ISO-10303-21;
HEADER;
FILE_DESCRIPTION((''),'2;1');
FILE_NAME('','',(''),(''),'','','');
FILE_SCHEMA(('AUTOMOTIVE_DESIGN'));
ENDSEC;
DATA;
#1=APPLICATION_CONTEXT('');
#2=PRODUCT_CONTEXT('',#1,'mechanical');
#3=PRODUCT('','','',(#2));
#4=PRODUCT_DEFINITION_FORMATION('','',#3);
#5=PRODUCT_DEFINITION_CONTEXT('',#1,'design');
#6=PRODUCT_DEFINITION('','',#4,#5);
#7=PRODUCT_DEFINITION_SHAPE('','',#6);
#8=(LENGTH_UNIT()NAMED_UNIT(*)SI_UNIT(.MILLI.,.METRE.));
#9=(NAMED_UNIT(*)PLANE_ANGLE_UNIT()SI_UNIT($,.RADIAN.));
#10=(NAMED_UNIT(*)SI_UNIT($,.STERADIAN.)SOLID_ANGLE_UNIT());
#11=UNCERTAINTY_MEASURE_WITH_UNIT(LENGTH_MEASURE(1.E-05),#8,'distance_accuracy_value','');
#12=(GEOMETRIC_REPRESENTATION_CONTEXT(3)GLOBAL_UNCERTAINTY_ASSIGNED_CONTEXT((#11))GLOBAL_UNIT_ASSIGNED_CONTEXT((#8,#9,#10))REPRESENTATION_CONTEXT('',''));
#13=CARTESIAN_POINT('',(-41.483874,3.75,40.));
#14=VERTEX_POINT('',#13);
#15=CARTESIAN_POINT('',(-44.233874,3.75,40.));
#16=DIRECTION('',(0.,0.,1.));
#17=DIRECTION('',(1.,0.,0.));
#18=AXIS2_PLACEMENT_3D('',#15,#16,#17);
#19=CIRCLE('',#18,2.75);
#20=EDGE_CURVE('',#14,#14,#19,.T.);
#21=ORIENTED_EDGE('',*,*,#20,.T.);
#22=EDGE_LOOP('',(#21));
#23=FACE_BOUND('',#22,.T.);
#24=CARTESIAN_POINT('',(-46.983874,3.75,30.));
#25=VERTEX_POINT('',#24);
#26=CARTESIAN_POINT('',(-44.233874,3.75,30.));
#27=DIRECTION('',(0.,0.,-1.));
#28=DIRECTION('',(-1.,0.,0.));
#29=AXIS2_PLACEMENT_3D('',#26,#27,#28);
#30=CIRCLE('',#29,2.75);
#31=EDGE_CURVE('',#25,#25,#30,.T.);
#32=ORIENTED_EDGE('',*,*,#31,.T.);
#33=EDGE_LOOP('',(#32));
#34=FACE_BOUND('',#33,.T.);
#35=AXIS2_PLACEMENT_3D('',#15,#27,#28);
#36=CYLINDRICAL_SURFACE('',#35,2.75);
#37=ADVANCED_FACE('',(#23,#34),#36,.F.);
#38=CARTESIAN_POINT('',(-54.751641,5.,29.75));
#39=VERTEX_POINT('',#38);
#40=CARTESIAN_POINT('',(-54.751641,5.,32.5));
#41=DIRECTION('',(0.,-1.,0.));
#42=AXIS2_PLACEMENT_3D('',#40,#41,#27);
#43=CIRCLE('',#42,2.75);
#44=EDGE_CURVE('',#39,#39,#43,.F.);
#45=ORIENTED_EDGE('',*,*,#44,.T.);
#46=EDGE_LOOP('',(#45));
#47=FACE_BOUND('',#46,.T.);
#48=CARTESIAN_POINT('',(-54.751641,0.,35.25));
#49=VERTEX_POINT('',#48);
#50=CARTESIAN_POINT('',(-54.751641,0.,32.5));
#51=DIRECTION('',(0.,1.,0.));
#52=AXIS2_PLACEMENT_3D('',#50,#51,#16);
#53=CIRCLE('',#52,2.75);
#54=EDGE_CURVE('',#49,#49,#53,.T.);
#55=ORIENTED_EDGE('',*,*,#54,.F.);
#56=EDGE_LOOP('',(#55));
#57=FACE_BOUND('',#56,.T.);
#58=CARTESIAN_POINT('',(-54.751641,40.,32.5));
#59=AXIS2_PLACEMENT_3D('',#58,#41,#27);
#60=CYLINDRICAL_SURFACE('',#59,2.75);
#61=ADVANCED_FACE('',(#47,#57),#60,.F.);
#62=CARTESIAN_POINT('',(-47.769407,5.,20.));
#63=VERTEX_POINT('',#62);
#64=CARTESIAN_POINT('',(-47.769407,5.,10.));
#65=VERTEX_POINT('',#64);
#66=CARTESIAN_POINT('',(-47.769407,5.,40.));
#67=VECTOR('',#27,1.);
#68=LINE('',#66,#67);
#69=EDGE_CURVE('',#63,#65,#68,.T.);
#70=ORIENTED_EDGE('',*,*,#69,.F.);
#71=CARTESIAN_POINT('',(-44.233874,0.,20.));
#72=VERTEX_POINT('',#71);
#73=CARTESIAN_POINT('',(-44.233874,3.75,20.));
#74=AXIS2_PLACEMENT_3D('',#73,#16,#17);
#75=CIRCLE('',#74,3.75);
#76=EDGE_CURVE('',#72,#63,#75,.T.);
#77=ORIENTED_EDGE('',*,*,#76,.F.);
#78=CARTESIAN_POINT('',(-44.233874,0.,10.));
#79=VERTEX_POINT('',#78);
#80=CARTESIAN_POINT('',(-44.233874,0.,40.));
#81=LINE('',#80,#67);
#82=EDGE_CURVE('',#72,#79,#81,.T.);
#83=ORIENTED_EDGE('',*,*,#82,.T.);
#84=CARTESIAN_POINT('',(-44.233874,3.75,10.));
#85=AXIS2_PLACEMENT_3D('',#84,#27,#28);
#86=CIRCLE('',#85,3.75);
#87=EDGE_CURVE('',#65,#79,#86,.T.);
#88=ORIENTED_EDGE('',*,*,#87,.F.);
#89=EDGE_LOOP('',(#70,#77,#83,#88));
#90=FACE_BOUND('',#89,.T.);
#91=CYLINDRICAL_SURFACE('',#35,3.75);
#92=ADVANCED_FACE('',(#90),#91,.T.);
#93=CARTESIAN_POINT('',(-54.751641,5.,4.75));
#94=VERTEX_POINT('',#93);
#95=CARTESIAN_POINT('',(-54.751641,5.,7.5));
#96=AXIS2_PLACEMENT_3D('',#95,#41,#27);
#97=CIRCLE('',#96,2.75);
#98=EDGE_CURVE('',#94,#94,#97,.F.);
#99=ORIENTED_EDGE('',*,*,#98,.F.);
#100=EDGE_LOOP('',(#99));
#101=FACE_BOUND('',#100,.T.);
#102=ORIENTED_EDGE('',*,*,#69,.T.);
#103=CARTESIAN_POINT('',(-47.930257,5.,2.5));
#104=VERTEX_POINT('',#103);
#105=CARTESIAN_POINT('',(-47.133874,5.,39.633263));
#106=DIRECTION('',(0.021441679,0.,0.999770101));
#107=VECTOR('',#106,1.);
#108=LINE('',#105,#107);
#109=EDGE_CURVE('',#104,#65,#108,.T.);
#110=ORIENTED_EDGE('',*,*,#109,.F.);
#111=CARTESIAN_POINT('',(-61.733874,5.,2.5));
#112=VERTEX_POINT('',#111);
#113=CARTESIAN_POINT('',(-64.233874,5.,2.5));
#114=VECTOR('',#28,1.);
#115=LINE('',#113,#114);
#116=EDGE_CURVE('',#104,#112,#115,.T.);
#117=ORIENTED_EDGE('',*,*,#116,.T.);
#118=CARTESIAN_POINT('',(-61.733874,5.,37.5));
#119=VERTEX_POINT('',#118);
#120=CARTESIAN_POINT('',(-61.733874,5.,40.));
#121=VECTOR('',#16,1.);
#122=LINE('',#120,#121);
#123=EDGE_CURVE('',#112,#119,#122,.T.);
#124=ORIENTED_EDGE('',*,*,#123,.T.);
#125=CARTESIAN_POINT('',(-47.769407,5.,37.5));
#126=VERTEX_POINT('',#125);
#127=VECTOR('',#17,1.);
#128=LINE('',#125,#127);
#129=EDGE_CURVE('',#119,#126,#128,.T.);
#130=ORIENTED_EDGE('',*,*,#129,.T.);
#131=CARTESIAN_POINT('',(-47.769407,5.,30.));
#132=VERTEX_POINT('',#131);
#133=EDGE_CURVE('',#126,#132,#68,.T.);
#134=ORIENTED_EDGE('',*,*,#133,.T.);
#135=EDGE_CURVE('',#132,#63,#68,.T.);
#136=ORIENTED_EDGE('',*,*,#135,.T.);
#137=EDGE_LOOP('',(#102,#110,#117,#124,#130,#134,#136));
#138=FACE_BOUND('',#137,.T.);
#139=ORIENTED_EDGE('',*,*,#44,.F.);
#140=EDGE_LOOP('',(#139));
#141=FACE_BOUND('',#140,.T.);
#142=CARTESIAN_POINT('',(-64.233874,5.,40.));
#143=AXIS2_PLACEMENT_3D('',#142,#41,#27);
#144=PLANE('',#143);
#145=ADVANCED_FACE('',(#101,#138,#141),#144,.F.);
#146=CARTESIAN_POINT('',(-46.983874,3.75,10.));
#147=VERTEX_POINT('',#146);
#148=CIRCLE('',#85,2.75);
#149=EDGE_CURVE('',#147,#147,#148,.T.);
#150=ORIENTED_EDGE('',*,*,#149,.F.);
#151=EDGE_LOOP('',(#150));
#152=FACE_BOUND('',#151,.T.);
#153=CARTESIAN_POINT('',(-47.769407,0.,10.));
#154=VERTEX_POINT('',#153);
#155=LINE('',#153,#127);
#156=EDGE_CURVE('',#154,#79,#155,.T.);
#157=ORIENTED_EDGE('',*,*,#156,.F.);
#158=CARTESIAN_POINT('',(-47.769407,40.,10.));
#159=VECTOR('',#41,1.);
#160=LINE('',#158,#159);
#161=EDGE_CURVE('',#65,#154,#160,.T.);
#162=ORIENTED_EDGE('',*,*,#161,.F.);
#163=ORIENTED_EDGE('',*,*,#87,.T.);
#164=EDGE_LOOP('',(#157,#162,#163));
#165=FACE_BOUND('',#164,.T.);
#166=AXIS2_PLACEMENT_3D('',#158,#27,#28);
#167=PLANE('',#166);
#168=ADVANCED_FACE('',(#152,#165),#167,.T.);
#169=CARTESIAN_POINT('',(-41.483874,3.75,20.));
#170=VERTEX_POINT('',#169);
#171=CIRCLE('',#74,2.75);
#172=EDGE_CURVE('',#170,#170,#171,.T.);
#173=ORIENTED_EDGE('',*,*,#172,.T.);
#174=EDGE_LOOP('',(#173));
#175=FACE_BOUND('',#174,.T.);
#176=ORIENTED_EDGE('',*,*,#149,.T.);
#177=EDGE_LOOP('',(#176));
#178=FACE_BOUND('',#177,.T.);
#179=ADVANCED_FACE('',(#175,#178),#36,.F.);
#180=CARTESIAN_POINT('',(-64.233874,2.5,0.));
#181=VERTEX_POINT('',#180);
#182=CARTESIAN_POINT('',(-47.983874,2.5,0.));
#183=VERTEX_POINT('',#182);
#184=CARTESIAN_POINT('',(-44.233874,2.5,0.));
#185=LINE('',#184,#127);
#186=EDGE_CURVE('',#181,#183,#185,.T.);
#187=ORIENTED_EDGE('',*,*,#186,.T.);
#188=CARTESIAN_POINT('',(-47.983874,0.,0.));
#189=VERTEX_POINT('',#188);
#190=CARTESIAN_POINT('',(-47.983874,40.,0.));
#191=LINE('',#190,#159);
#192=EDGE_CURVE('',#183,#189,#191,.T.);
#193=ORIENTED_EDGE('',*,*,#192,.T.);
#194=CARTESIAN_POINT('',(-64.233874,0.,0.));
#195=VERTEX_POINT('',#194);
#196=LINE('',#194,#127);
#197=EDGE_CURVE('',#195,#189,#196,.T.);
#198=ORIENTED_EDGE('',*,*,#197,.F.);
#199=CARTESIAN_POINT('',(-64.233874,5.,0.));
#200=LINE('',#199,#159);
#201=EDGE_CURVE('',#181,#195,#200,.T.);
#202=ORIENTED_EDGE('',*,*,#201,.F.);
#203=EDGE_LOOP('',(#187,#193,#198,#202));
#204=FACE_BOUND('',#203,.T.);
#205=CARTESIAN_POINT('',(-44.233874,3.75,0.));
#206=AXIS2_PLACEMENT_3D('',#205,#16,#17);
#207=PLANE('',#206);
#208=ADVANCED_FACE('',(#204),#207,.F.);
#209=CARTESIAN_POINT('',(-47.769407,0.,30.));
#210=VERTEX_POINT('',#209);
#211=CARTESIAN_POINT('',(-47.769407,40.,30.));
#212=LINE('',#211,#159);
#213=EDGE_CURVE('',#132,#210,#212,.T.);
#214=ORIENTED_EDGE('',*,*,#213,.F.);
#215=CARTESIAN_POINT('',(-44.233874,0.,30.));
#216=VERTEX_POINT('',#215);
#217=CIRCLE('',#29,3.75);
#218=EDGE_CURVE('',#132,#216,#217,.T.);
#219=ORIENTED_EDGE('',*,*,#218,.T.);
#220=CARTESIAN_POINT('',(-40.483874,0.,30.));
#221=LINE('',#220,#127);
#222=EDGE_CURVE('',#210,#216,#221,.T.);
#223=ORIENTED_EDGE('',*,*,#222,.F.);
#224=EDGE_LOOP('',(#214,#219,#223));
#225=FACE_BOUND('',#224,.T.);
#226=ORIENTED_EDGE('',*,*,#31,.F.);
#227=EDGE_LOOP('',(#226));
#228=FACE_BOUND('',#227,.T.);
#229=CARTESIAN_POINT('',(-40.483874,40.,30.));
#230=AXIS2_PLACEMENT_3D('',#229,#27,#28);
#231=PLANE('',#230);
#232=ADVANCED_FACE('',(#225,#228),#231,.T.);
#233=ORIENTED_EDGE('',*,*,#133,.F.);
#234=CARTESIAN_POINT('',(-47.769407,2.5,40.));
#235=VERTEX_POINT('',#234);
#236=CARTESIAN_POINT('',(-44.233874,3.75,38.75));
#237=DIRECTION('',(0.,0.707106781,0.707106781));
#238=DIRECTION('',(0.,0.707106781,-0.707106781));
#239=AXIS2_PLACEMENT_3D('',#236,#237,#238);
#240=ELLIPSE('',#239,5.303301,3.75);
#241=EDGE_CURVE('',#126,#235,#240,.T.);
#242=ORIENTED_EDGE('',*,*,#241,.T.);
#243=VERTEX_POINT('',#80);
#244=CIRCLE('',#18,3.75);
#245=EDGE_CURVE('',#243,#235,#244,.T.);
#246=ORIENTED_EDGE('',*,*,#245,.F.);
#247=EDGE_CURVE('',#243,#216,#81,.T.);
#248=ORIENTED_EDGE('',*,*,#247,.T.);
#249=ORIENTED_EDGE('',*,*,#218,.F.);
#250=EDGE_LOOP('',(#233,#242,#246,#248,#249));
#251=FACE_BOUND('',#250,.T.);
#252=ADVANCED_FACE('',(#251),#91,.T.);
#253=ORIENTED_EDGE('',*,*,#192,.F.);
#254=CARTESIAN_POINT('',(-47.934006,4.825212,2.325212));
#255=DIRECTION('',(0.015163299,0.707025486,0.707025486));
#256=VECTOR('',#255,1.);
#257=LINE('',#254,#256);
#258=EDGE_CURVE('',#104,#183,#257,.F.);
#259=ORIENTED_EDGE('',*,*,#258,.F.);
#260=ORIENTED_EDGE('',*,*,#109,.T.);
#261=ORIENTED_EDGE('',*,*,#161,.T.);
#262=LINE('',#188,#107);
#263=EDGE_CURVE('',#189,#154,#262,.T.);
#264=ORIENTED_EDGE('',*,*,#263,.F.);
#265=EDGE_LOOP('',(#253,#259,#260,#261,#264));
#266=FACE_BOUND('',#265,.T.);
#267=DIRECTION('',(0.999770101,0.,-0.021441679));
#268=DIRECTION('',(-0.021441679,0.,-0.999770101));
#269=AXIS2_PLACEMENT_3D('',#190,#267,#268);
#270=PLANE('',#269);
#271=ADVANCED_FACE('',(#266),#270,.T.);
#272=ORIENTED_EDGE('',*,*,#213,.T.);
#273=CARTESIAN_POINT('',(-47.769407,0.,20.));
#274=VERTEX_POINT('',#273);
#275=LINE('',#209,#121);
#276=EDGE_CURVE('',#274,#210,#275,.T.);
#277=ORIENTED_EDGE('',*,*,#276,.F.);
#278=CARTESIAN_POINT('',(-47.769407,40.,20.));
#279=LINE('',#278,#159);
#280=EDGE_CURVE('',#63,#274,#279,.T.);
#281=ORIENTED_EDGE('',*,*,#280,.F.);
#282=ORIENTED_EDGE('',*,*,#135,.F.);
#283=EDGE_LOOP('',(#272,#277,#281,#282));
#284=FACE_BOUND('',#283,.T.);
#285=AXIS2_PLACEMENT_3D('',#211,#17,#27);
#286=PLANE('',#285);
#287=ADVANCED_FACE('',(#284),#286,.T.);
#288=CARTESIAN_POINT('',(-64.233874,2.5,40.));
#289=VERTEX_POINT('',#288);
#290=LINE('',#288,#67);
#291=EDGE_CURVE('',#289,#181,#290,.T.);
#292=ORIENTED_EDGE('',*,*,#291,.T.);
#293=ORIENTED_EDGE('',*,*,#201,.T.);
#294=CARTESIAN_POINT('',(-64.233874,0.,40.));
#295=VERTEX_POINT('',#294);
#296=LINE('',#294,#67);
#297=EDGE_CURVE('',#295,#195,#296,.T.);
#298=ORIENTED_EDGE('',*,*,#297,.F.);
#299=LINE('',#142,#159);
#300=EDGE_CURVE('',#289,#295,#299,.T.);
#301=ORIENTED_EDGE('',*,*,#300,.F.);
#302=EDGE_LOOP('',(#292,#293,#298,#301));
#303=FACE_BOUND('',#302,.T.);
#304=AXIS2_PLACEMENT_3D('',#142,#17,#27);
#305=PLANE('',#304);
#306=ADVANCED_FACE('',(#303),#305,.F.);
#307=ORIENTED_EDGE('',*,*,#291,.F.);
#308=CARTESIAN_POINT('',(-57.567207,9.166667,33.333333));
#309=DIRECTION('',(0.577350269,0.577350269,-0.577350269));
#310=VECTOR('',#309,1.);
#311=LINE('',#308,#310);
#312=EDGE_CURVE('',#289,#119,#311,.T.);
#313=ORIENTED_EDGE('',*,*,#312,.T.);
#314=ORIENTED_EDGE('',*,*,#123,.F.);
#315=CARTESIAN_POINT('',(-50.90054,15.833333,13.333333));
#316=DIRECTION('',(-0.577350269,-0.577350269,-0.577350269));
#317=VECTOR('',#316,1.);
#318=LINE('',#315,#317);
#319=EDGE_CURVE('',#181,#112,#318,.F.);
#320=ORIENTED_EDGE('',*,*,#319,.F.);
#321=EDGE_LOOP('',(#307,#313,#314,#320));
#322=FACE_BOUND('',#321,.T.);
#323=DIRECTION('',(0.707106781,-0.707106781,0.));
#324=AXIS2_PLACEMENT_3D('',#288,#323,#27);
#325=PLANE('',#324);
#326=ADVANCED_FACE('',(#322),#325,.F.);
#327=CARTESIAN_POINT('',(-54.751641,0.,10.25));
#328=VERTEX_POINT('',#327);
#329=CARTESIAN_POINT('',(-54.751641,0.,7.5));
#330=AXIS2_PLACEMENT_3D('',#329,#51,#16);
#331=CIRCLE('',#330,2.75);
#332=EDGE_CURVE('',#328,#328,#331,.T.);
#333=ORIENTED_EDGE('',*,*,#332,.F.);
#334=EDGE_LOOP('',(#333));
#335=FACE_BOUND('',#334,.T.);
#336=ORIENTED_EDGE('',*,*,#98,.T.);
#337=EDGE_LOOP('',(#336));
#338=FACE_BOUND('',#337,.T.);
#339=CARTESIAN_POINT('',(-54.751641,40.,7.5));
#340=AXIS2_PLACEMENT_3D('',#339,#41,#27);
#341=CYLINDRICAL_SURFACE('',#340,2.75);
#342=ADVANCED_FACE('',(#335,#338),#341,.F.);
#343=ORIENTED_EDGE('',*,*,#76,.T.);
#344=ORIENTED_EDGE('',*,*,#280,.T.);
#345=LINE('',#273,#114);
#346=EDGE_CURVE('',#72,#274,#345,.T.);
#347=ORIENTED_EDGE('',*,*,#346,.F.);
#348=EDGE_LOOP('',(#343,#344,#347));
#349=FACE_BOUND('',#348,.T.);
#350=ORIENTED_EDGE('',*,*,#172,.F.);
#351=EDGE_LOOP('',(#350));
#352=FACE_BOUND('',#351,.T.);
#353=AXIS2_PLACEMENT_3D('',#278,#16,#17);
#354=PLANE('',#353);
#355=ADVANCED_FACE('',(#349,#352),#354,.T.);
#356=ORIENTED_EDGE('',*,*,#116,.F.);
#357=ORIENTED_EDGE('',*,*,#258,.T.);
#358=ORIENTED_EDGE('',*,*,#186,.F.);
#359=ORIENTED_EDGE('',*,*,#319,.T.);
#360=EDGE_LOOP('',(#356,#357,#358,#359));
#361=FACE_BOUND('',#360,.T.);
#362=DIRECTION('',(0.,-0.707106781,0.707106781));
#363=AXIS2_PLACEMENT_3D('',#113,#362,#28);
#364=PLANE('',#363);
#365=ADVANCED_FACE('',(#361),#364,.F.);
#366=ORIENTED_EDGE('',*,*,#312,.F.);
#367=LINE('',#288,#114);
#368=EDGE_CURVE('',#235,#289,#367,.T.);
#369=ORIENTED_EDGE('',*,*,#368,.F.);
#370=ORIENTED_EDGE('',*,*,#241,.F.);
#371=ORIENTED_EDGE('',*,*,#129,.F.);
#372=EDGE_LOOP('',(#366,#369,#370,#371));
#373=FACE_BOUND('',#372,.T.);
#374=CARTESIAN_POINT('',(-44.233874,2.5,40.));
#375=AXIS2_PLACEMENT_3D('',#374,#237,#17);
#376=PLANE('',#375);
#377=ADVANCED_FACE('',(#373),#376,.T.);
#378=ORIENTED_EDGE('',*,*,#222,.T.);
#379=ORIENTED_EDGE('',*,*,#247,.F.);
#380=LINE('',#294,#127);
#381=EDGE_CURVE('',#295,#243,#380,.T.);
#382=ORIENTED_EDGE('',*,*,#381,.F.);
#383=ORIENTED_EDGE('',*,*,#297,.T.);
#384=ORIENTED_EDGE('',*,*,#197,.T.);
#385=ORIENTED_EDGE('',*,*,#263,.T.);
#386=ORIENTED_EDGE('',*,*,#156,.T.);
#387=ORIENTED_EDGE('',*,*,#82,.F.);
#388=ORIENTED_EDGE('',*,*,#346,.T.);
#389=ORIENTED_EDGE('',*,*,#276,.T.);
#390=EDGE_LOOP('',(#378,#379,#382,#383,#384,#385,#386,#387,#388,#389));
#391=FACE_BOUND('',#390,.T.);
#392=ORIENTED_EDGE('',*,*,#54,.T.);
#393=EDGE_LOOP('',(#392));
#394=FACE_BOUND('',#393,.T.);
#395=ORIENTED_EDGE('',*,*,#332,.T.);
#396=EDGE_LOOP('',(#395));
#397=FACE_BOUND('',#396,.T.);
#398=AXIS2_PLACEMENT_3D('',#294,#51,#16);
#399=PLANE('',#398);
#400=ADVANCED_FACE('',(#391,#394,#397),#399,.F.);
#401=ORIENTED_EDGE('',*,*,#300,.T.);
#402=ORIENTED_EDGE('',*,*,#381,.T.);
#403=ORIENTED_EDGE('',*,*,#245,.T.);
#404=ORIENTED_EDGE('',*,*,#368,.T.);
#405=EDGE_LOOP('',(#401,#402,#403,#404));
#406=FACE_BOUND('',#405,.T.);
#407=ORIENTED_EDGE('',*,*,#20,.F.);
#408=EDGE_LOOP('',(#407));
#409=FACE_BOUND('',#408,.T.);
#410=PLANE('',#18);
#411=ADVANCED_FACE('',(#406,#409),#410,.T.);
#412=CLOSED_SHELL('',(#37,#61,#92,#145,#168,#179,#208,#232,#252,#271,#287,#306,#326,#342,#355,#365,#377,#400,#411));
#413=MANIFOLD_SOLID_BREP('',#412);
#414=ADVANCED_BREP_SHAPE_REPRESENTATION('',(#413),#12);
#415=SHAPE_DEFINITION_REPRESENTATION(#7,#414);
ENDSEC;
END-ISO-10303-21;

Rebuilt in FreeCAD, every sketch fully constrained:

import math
import FreeCAD as App
import Part
import Sketcher

V = App.Vector
Q = App.Units.Quantity


def edges_at(feature, points):
    """Names of the edges that pass closest to the given points."""
    edges = feature.Shape.Edges
    near = lambda p: min(range(len(edges)), key=lambda i: edges[i].distToShape(Part.Vertex(*p))[0])
    return sorted({f"Edge{near(p) + 1}" for p in points})

doc = App.newDocument("Part")
params = doc.addObject("Spreadsheet::Sheet", "Params")
for row, (alias, value) in enumerate([
    ("sketch1_diameter", "5.5 mm"),
    ("sketch1_width", "20 mm"),
    ("sketch1_height", "5 mm"),
    ("sketch1_radius", "3.75 mm"),
    ("pad1_length", "40 mm"),
    ("chamfer_size", "2.5 mm"),
    ("sketch2_diameter", "5.5 mm"),
    ("sketch2_height", "10 mm"),
    ("sketch2_width", "7.5 mm"),
    ("pocket1_length", "40 mm"),
    ("pocket2_length", "88 mm"),
], start=1):
    params.set(f"A{row}", alias)
    params.set(f"B{row}", "=" + value)
    params.setAlias(f"B{row}", alias)

body = doc.addObject("PartDesign::Body", "Body")

# Sketch on XY plane
sketch1 = doc.addObject("Sketcher::SketchObject", "Sketch")
body.addObject(sketch1)
sketch1.AttachmentSupport = (doc.XY_Plane, [""])
sketch1.MapMode = "FlatFace"
sketch1.addGeometry([
    Part.LineSegment(V(-64.233874, 5, 0), V(-64.233874, 0, 0)),  # 0
    Part.LineSegment(V(-64.233874, 0, 0), V(-44.233874, 0, 0)),  # 1
    Part.ArcOfCircle(Part.Circle(V(-44.233874, 3.75, 0), V(0, 0, 1), 3.75), math.radians(-90), math.radians(160.528779)),  # 2
    Part.LineSegment(V(-47.769407, 5, 0), V(-64.233874, 5, 0)),  # 3
    Part.Circle(V(-44.233874, 3.75, 0), V(0, 0, 1), 2.75),  # 4
], False)
sketch1.addConstraint([
    Sketcher.Constraint("Coincident", 0, 2, 1, 1),
    Sketcher.Constraint("Tangent", 1, 2, 2, 1),
    Sketcher.Constraint("Coincident", 2, 2, 3, 1),
    Sketcher.Constraint("Coincident", 3, 2, 0, 1),
    Sketcher.Constraint("Vertical", 0),
    Sketcher.Constraint("Horizontal", 1),
    Sketcher.Constraint("Horizontal", 3),
    Sketcher.Constraint("Coincident", 4, 3, 2, 3),
    Sketcher.Constraint("PointOnObject", 0, 2, -1),
    Sketcher.Constraint("Diameter", 4, Q("5.5 mm")),
    Sketcher.Constraint("DistanceX", 1, 1, 1, 2, Q("20 mm")),
    Sketcher.Constraint("DistanceY", 0, 2, 0, 1, Q("5 mm")),
    Sketcher.Constraint("Radius", 2, Q("3.75 mm")),
    Sketcher.Constraint("DistanceX", 2, 3, -1, 1, Q("44.233874 mm")),
])
sketch1.setExpression("Constraints[9]", "Params.sketch1_diameter")
sketch1.setExpression("Constraints[10]", "Params.sketch1_width")
sketch1.setExpression("Constraints[11]", "Params.sketch1_height")
sketch1.setExpression("Constraints[12]", "Params.sketch1_radius")
pad1 = doc.addObject("PartDesign::Pad", "Pad")
body.addObject(pad1)
pad1.Profile = sketch1
pad1.setExpression("Length", "Params.pad1_length")
doc.recompute()

chamfer = doc.addObject("PartDesign::Chamfer", "Chamfer")
body.addObject(chamfer)
chamfer.Base = (pad1, edges_at(pad1, [(-56.002, 5, 40), (-56.002, 5, 0), (-64.234, 5, 20)]))
chamfer.setExpression("Size", "Params.chamfer_size")

# Sketch on XZ plane
sketch2 = doc.addObject("Sketcher::SketchObject", "Sketch001")
body.addObject(sketch2)
sketch2.AttachmentSupport = (doc.XZ_Plane, [""])
sketch2.MapMode = "FlatFace"
sketch2.addGeometry([
    Part.Circle(V(-54.751641, 32.5, 0), V(0, 0, 1), 2.75),  # 0
    Part.Circle(V(-54.751641, 7.5, 0), V(0, 0, 1), 2.75),  # 1
    Part.LineSegment(V(-47.769407, 20, 0), V(-47.769407, 30, 0)),  # 2
    Part.LineSegment(V(-47.769407, 30, 0), V(-40.483874, 30, 0)),  # 3
    Part.LineSegment(V(-40.483874, 30, 0), V(-40.483874, 20, 0)),  # 4
    Part.LineSegment(V(-40.483874, 20, 0), V(-47.769407, 20, 0)),  # 5
    Part.LineSegment(V(-40.483874, 0, 0), V(-47.983874, 0, 0)),  # 6
    Part.LineSegment(V(-47.983874, 0, 0), V(-47.769407, 10, 0)),  # 7
    Part.LineSegment(V(-47.769407, 10, 0), V(-40.483874, 10, 0)),  # 8
    Part.LineSegment(V(-40.483874, 10, 0), V(-40.483874, 0, 0)),  # 9
], False)
sketch2.addConstraint([
    Sketcher.Constraint("Coincident", 2, 2, 3, 1),
    Sketcher.Constraint("Coincident", 3, 2, 4, 1),
    Sketcher.Constraint("Coincident", 4, 2, 5, 1),
    Sketcher.Constraint("Coincident", 5, 2, 2, 1),
    Sketcher.Constraint("Coincident", 6, 2, 7, 1),
    Sketcher.Constraint("Coincident", 7, 2, 8, 1),
    Sketcher.Constraint("Coincident", 8, 2, 9, 1),
    Sketcher.Constraint("Coincident", 9, 2, 6, 1),
    Sketcher.Constraint("Vertical", 2),
    Sketcher.Constraint("Horizontal", 3),
    Sketcher.Constraint("Vertical", 4),
    Sketcher.Constraint("Horizontal", 5),
    Sketcher.Constraint("Horizontal", 6),
    Sketcher.Constraint("Horizontal", 8),
    Sketcher.Constraint("Vertical", 9),
    Sketcher.Constraint("Equal", 0, 1),
    Sketcher.Constraint("PointOnObject", 6, 2, -1),
    Sketcher.Constraint("Vertical", 0, 3, 1, 3),
    Sketcher.Constraint("Vertical", 5, 2, 7, 2),
    Sketcher.Constraint("Vertical", 4, 2, 8, 2),
    Sketcher.Constraint("Equal", 4, 9),
    Sketcher.Constraint("Diameter", 0, Q("5.5 mm")),
    Sketcher.Constraint("DistanceY", 2, 1, 2, 2, Q("10 mm")),
    Sketcher.Constraint("DistanceX", 6, 2, 6, 1, Q("7.5 mm")),
    Sketcher.Constraint("DistanceY", -1, 1, 2, 2, Q("30 mm")),
    Sketcher.Constraint("DistanceY", 1, 3, 0, 3, Q("25 mm")),
    Sketcher.Constraint("DistanceY", -1, 1, 0, 3, Q("32.5 mm")),
    Sketcher.Constraint("Distance", 7, Q("10.0023 mm")),
    Sketcher.Constraint("DistanceX", 0, 3, -1, 1, Q("54.751641 mm")),
    Sketcher.Constraint("DistanceX", 2, 2, -1, 1, Q("47.769407 mm")),
])
sketch2.setExpression("Constraints[21]", "Params.sketch2_diameter")
sketch2.setExpression("Constraints[22]", "Params.sketch2_height")
sketch2.setExpression("Constraints[23]", "Params.sketch2_width")
pocket1 = doc.addObject("PartDesign::Pocket", "Pocket")
body.addObject(pocket1)
pocket1.Profile = sketch2
pocket1.setExpression("Length", "Params.pocket1_length")

# Sketch on YZ plane
sketch3 = doc.addObject("Sketcher::SketchObject", "Sketch002")
body.addObject(sketch3)
sketch3.AttachmentSupport = (doc.YZ_Plane, [""])
sketch3.MapMode = "FlatFace"
sketch3.addGeometry([
    Part.LineSegment(V(4.284369, 1.784369, 0), V(3.375257, 0.875257, 0)),
    Part.LineSegment(V(3.375257, 0.875257, 0), V(3.163507, -0.368859, 0)),
    Part.LineSegment(V(3.163507, -0.368859, 0), V(4.284369, -0.59172, 0)),
    Part.LineSegment(V(4.284369, -0.59172, 0), V(4.284369, 1.784369, 0)),
], False)
sketch3.addConstraint([
    Sketcher.Constraint("Coincident", 0, 2, 1, 1),
    Sketcher.Constraint("Coincident", 1, 2, 2, 1),
    Sketcher.Constraint("Coincident", 2, 2, 3, 1),
    Sketcher.Constraint("Coincident", 3, 2, 0, 1),
    Sketcher.Constraint("Vertical", 3),
    Sketcher.Constraint("Angle", 0, Q("-135 deg")),
    Sketcher.Constraint("DistanceY", 3, 1, 3, 2, Q("2.376089 mm")),
    Sketcher.Constraint("Distance", 0, Q("1.285679 mm")),
    Sketcher.Constraint("DistanceY", 1, 2, -1, 1, Q("0.368859 mm")),
    Sketcher.Constraint("DistanceX", -1, 1, 2, 2, Q("4.284369 mm")),
    Sketcher.Constraint("DistanceY", 2, 2, -1, 1, Q("0.59172 mm")),
    Sketcher.Constraint("DistanceX", 1, 2, 0, 2, Q("0.21175 mm")),
])
pocket2 = doc.addObject("PartDesign::Pocket", "Pocket001")
body.addObject(pocket2)
pocket2.Profile = sketch3
pocket2.setExpression("Length", "Params.pocket2_length")

doc.recompute()
